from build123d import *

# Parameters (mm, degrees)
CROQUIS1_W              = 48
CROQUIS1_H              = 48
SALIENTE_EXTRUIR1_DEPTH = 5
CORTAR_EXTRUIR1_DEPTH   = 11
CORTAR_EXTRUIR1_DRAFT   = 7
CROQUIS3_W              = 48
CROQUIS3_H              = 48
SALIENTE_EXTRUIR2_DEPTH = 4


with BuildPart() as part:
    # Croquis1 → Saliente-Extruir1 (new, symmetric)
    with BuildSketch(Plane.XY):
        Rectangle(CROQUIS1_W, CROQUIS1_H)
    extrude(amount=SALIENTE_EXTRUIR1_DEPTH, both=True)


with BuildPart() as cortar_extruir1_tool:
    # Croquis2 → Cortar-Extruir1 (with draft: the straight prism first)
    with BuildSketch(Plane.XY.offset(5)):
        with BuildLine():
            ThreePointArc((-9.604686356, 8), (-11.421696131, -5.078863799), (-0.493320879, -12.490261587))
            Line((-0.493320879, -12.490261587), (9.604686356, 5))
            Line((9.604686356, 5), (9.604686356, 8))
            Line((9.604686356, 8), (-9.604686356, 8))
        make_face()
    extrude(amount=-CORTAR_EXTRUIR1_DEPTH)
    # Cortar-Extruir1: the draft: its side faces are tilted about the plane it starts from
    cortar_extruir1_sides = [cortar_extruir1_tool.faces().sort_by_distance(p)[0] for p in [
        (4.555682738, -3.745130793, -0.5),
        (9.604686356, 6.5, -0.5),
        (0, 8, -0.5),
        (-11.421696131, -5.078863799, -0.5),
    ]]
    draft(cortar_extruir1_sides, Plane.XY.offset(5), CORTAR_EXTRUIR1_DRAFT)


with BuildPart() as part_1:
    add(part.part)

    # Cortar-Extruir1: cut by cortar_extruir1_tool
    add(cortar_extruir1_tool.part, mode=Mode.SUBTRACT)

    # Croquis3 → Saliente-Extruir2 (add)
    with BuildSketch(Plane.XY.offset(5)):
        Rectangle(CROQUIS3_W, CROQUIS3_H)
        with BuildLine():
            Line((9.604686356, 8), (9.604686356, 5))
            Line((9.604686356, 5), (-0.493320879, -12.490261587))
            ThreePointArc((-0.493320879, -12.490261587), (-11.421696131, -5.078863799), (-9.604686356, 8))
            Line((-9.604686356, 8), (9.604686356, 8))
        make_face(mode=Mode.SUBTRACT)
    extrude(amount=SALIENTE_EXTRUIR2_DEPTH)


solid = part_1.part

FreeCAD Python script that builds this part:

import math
import FreeCAD as App
import Part
import Sketcher
from FreeCAD import Vector
Q = App.Units.Quantity


def faces_at(feature, points):
    """Names of the faces that lie closest to the given points."""
    faces = feature.Shape.Faces
    near = lambda p: min(range(len(faces)), key=lambda i: faces[i].distToShape(Part.Vertex(*p))[0])
    return sorted({f"Face{near(p) + 1}" for p in points})


def add_polygon(sketch, points):
    """Adds a closed chain of lines whose ends are joined by coincident constraints."""
    first, n = sketch.GeometryCount, len(points)
    for a, b in zip(points, points[1:] + points[:1]):
        sketch.addGeometry(Part.LineSegment(App.Vector(*a, 0), App.Vector(*b, 0)), False)
    for i in range(n):
        sketch.addConstraint(Sketcher.Constraint("Coincident", first + i, 2, first + (i + 1) % n, 1))

doc = App.newDocument("Part")
params = doc.addObject("Spreadsheet::Sheet", "Params")
for row, (alias, value) in enumerate([
    ("sketch1_width", "48 mm"),
    ("pad1_length", "10 mm"),
    ("sketch2_radius", "12.5 mm"),
    ("sketch2_height", "3 mm"),
    ("pad2_length", "11 mm"),
    ("draft_angle", "7 deg"),
    ("sketch3_radius", "12.5 mm"),
    ("sketch3_width", "48 mm"),
    ("sketch3_height", "3 mm"),
    ("pad3_length", "4 mm"),
], start=1):
    params.set(f"A{row}", alias)
    params.set(f"B{row}", "=" + value)
    params.setAlias(f"B{row}", alias)

body = doc.addObject("PartDesign::Body", "Body")

# Sketch on XY plane
sketch1 = body.newObject("Sketcher::SketchObject", "Sketch")
sketch1.AttachmentSupport = (doc.getObject("XY_Plane"), [""])
sketch1.MapMode = "FlatFace"
add_polygon(sketch1, [(-24, 24), (-24, -24), (24, -24), (24, 24)])  # lines 0-3
sketch1.addConstraint(Sketcher.Constraint("Vertical", 0))
sketch1.addConstraint(Sketcher.Constraint("Horizontal", 1))
sketch1.addConstraint(Sketcher.Constraint("Vertical", 2))
sketch1.addConstraint(Sketcher.Constraint("Horizontal", 3))
sketch1.addConstraint(Sketcher.Constraint("Symmetric", 0, 2, 2, 2, -1, 1))
sketch1.addConstraint(Sketcher.Constraint("Equal", 3, 0))
sketch1.addConstraint(Sketcher.Constraint("DistanceX", 1, 1, 1, 2, Q("48 mm")))
sketch1.setExpression("Constraints[10]", "Params.sketch1_width")
pad1 = body.newObject("PartDesign::Pad", "Pad")
pad1.Profile = sketch1
pad1.setExpression("Length", "Params.pad1_length")
pad1.Midplane = True
body2 = doc.addObject("PartDesign::Body", "Body001")

# Sketch on XY plane
sketch2 = body2.newObject("Sketcher::SketchObject", "Sketch001")
sketch2.AttachmentSupport = (doc.getObject("XY_Plane001"), [""])
sketch2.MapMode = "FlatFace"
sketch2.AttachmentOffset = App.Placement(Vector(0, 0, 5), App.Rotation())
sketch2.addGeometry(Part.ArcOfCircle(Part.Circle(Vector(0, 0, 0), Vector(0, 0, 1), 12.5), math.radians(140), math.radians(268)), False)
sketch2.addGeometry(Part.LineSegment(Vector(-0.5, -12.5, 0), Vector(9.6, 5, 0)), False)
sketch2.addGeometry(Part.LineSegment(Vector(9.6, 5, 0), Vector(9.6, 8, 0)), False)
sketch2.addGeometry(Part.LineSegment(Vector(9.6, 8, 0), Vector(-9.6, 8, 0)), False)
sketch2.addConstraint(Sketcher.Constraint("Coincident", 0, 2, 1, 1))
sketch2.addConstraint(Sketcher.Constraint("Coincident", 1, 2, 2, 1))
sketch2.addConstraint(Sketcher.Constraint("Coincident", 2, 2, 3, 1))
sketch2.addConstraint(Sketcher.Constraint("Coincident", 3, 2, 0, 1))
sketch2.addConstraint(Sketcher.Constraint("Vertical", 2))
sketch2.addConstraint(Sketcher.Constraint("Horizontal", 3))
sketch2.addConstraint(Sketcher.Constraint("Coincident", 0, 3, -1, 1))
sketch2.addConstraint(Sketcher.Constraint("Radius", 0, Q("12.5 mm")))
sketch2.addConstraint(Sketcher.Constraint("DistanceY", 2, 1, 2, 2, Q("3 mm")))
sketch2.addConstraint(Sketcher.Constraint("Angle", 1, Q("60 deg")))
sketch2.addConstraint(Sketcher.Constraint("DistanceY", -1, 1, 1, 2, Q("5 mm")))
sketch2.addConstraint(Sketcher.Constraint("DistanceX", 3, 2, 3, 1, Q("19.209373 mm")))
sketch2.setExpression("Constraints[7]", "Params.sketch2_radius")
sketch2.setExpression("Constraints[8]", "Params.sketch2_height")
pad2 = body2.newObject("PartDesign::Pad", "Pad001")
pad2.Profile = sketch2
pad2.setExpression("Length", "Params.pad2_length")
pad2.Reversed = True
doc.recompute()

datumplane = body2.newObject("PartDesign::Plane", "DatumPlane")
datumplane.AttachmentSupport = (doc.getObject("XY_Plane001"), [""])
datumplane.MapMode = "FlatFace"
datumplane.AttachmentOffset = App.Placement(Vector(0, 0, 5), App.Rotation())
draft = body2.newObject("PartDesign::Draft", "Draft")
draft.Base = (pad2, faces_at(pad2, [
    (4.556, -3.745, -0.5),
    (9.605, 6.5, -0.5),
    (0, 8, -0.5),
    (-11.422, -5.079, -0.5),
]))
draft.NeutralPlane = (datumplane, [""])
draft.setExpression("Angle", "Params.draft_angle")
draft.Reversed = False
doc.recompute()

boolean = body.newObject("PartDesign::Boolean", "Boolean")
boolean.Type = "Cut"
boolean.addObjects([body2])

# Sketch on XY plane
sketch3 = body.newObject("Sketcher::SketchObject", "Sketch002")
sketch3.AttachmentSupport = (doc.getObject("XY_Plane"), [""])
sketch3.MapMode = "FlatFace"
sketch3.AttachmentOffset = App.Placement(Vector(0, 0, 5), App.Rotation())
add_polygon(sketch3, [(-24, 24), (-24, -24), (24, -24), (24, 24)])  # lines 0-3
sketch3.addGeometry(Part.LineSegment(Vector(-9.6, 8, 0), Vector(9.6, 8, 0)), False)  # 4
sketch3.addGeometry(Part.LineSegment(Vector(9.6, 8, 0), Vector(9.6, 5, 0)), False)  # 5
sketch3.addGeometry(Part.LineSegment(Vector(9.6, 5, 0), Vector(-0.5, -12.5, 0)), False)  # 6
sketch3.addGeometry(Part.ArcOfCircle(Part.Circle(Vector(0, 0, 0), Vector(0, 0, 1), 12.5), math.radians(140), math.radians(268)), False)  # 7
sketch3.addConstraint(Sketcher.Constraint("Coincident", 4, 2, 5, 1))
sketch3.addConstraint(Sketcher.Constraint("Coincident", 5, 2, 6, 1))
sketch3.addConstraint(Sketcher.Constraint("Coincident", 6, 2, 7, 2))
sketch3.addConstraint(Sketcher.Constraint("Coincident", 7, 1, 4, 1))
sketch3.addConstraint(Sketcher.Constraint("Vertical", 0))
sketch3.addConstraint(Sketcher.Constraint("Horizontal", 1))
sketch3.addConstraint(Sketcher.Constraint("Vertical", 2))
sketch3.addConstraint(Sketcher.Constraint("Horizontal", 3))
sketch3.addConstraint(Sketcher.Constraint("Horizontal", 4))
sketch3.addConstraint(Sketcher.Constraint("Vertical", 5))
sketch3.addConstraint(Sketcher.Constraint("Coincident", 7, 3, -1, 1))
sketch3.addConstraint(Sketcher.Constraint("Symmetric", 0, 2, 2, 2, -1, 1))
sketch3.addConstraint(Sketcher.Constraint("Equal", 3, 0))
sketch3.addConstraint(Sketcher.Constraint("Radius", 7, Q("12.5 mm")))
sketch3.addConstraint(Sketcher.Constraint("DistanceX", 1, 1, 1, 2, Q("48 mm")))
sketch3.addConstraint(Sketcher.Constraint("DistanceY", 5, 2, 5, 1, Q("3 mm")))
sketch3.addConstraint(Sketcher.Constraint("Angle", 6, Q("-120 deg")))
sketch3.addConstraint(Sketcher.Constraint("DistanceY", -1, 1, 4, 2, Q("8 mm")))
sketch3.addConstraint(Sketcher.Constraint("DistanceX", 4, 1, 4, 2, Q("19.209373 mm")))
sketch3.setExpression("Constraints[17]", "Params.sketch3_radius")
sketch3.setExpression("Constraints[18]", "Params.sketch3_width")
sketch3.setExpression("Constraints[19]", "Params.sketch3_height")
pad3 = body.newObject("PartDesign::Pad", "Pad002")
pad3.Profile = sketch3
pad3.setExpression("Length", "Params.pad3_length")

doc.recompute()
